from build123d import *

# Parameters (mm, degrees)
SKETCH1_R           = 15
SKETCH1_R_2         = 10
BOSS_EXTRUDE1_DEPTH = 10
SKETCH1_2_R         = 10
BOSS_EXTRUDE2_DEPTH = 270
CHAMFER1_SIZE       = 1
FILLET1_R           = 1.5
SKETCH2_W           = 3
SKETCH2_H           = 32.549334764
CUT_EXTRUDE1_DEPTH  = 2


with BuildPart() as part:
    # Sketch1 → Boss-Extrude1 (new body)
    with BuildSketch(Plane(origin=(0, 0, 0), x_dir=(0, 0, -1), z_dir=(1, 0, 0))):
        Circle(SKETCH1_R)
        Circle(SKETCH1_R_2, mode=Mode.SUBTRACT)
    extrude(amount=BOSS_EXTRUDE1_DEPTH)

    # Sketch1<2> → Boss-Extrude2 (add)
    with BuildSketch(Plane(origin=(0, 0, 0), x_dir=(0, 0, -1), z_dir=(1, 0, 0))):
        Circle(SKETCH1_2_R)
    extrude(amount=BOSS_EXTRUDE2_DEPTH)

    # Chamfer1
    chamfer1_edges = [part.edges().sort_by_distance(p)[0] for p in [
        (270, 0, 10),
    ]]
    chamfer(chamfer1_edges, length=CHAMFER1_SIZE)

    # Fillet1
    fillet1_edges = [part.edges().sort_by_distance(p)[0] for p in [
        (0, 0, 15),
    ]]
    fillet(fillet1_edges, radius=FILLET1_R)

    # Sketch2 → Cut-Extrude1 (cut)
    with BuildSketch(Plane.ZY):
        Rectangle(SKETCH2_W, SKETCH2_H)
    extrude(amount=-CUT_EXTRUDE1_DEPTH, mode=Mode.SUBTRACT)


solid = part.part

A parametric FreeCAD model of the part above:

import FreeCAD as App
import Part
import Sketcher

V = App.Vector
Q = App.Units.Quantity


def edges_at(feature, points):
    """Names of the edges that pass closest to the given points."""
    edges = feature.Shape.Edges
    near = lambda p: min(range(len(edges)), key=lambda i: edges[i].distToShape(Part.Vertex(*p))[0])
    return sorted({f"Edge{near(p) + 1}" for p in points})


def add_polygon(sketch, points):
    """Adds a closed chain of lines whose ends are joined by coincident constraints."""
    first, n = sketch.GeometryCount, len(points)
    for a, b in zip(points, points[1:] + points[:1]):
        sketch.addGeometry(Part.LineSegment(App.Vector(*a, 0), App.Vector(*b, 0)), False)
    for i in range(n):
        sketch.addConstraint(Sketcher.Constraint("Coincident", first + i, 2, first + (i + 1) % n, 1))

doc = App.newDocument("Part")
body = doc.addObject("PartDesign::Body", "Body")

# Sketch on YZ plane
sketch1 = body.newObject("Sketcher::SketchObject", "Sketch")
sketch1.AttachmentSupport = (doc.getObject("YZ_Plane"), [""])
sketch1.MapMode = "FlatFace"
sketch1.addGeometry([
    Part.Circle(V(0, 0, 0), V(0, 0, 1), 15),
    Part.Circle(V(0, 0, 0), V(0, 0, 1), 10),
], False)
sketch1.addConstraint([
    Sketcher.Constraint("Coincident", 0, 3, -1, 1),
    Sketcher.Constraint("Coincident", 1, 3, -1, 1),
    Sketcher.Constraint("Diameter", 0, Q("30 mm")),
    Sketcher.Constraint("Diameter", 1, Q("20 mm")),
])
pad1 = body.newObject("PartDesign::Pad", "Pad")
pad1.Profile = sketch1
pad1.Length = 10

# Sketch on YZ plane
sketch2 = body.newObject("Sketcher::SketchObject", "Sketch001")
sketch2.AttachmentSupport = (doc.getObject("YZ_Plane"), [""])
sketch2.MapMode = "FlatFace"
sketch2.addGeometry(Part.Circle(V(0, 0, 0), V(0, 0, 1), 10), False)
sketch2.addConstraint([
    Sketcher.Constraint("Coincident", 0, 3, -1, 1),
    Sketcher.Constraint("Diameter", 0, Q("20 mm")),
])
pad2 = body.newObject("PartDesign::Pad", "Pad001")
pad2.Profile = sketch2
pad2.Length = 270
doc.recompute()

chamfer = body.newObject("PartDesign::Chamfer", "Chamfer")
chamfer.Base = (pad2, edges_at(pad2, [(270, 0, 10)]))
chamfer.Size = 1
doc.recompute()

fillet = body.newObject("PartDesign::Fillet", "Fillet")
fillet.Base = (chamfer, edges_at(chamfer, [(0, 0, 15)]))
fillet.Radius = 1.5

# Sketch on YZ plane
sketch3 = body.newObject("Sketcher::SketchObject", "Sketch002")
sketch3.AttachmentSupport = (doc.getObject("YZ_Plane"), [""])
sketch3.MapMode = "FlatFace"
add_polygon(sketch3, [(16.3, -1.5), (-16.3, -1.5), (-16.3, 1.5), (16.3, 1.5)])  # lines 0-3
sketch3.addConstraint([
    Sketcher.Constraint("Horizontal", 0),
    Sketcher.Constraint("Vertical", 1),
    Sketcher.Constraint("Horizontal", 2),
    Sketcher.Constraint("Vertical", 3),
    Sketcher.Constraint("Symmetric", 0, 2, 2, 2, -1, 1),
    Sketcher.Constraint("DistanceY", 1, 1, 1, 2, Q("3 mm")),
    Sketcher.Constraint("DistanceX", 0, 2, 0, 1, Q("32.549335 mm")),
])
pocket1 = body.newObject("PartDesign::Pocket", "Pocket")
pocket1.Profile = sketch3
pocket1.Length = 2
pocket1.Reversed = True

doc.recompute()
